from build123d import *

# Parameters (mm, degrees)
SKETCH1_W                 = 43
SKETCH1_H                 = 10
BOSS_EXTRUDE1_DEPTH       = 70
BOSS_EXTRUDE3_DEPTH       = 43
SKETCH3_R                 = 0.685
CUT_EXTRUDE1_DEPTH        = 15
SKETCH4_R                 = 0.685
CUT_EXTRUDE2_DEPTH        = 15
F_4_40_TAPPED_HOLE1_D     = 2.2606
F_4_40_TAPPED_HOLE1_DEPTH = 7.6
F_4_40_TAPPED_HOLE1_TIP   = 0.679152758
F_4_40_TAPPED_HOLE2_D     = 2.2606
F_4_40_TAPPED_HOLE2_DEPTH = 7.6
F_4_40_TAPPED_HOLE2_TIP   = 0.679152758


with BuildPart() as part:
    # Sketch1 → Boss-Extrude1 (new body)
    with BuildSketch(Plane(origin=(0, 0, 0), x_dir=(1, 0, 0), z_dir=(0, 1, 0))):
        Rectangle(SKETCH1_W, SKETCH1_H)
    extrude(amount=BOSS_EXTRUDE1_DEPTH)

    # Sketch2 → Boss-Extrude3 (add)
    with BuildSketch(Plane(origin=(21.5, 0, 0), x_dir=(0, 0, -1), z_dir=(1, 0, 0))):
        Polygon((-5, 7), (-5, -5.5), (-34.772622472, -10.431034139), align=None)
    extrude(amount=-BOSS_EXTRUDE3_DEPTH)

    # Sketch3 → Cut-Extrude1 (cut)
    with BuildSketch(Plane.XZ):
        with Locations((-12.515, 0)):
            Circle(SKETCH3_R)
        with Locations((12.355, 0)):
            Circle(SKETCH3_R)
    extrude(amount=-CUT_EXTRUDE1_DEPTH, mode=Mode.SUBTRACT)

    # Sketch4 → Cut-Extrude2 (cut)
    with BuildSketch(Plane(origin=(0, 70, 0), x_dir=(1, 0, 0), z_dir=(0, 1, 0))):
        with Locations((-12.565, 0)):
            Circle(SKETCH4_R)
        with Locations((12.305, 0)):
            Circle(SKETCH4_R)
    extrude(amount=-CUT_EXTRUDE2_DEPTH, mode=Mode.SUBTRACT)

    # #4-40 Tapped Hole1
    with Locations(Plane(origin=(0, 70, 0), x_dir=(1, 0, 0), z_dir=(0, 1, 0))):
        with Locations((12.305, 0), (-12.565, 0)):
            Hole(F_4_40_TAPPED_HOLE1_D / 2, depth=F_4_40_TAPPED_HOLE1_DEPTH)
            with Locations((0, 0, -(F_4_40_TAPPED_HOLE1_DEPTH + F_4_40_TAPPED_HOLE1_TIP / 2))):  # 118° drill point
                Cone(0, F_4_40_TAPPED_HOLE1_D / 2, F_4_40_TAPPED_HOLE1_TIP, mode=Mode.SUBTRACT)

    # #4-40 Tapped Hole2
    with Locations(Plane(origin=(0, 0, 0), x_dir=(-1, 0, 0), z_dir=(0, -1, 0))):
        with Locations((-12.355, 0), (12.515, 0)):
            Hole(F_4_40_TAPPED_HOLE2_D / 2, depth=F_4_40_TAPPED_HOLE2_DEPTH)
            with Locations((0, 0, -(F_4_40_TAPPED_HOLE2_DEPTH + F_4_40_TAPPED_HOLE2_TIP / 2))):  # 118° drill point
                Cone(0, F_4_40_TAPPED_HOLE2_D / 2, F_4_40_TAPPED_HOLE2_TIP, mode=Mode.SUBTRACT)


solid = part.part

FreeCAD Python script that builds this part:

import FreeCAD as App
import Part
import Sketcher
from FreeCAD import Vector
Q = App.Units.Quantity

doc = App.newDocument("Part")
params = doc.addObject("Spreadsheet::Sheet", "Params")
for row, (alias, value) in enumerate([
    ("sketch1_width", "43 mm"),
    ("sketch1_height", "10 mm"),
    ("pad1_length", "70 mm"),
    ("sketch2_width", "12.5 mm"),
    ("sketch2_length", "34.5 mm"),
    ("pad2_length", "43 mm"),
    ("sketch3_diameter", "1.37 mm"),
    ("pocket1_length", "15 mm"),
    ("sketch4_diameter", "1.37 mm"),
    ("pocket2_length", "15 mm"),
    ("hole_diameter", "2.2606 mm"),
    ("hole_depth", "7.6 mm"),
    ("hole2_diameter", "2.2606 mm"),
    ("hole2_depth", "7.6 mm"),
], start=1):
    params.set(f"A{row}", alias)
    params.set(f"B{row}", "=" + value)
    params.setAlias(f"B{row}", alias)

body = doc.addObject("PartDesign::Body", "Body")

sketch1 = doc.addObject("Sketcher::SketchObject", "Sketch")
body.addObject(sketch1)
sketch1.AttachmentSupport = (doc.XZ_Plane, [""])
sketch1.MapMode = "FlatFace"
sketch1.addGeometry([
    Part.LineSegment(Vector(-21.5, -5, 0), Vector(-21.5, 5, 0)),
    Part.LineSegment(Vector(-21.5, 5, 0), Vector(21.5, 5, 0)),
    Part.LineSegment(Vector(21.5, 5, 0), Vector(21.5, -5, 0)),
    Part.LineSegment(Vector(21.5, -5, 0), Vector(-21.5, -5, 0)),
], False)
sketch1.addConstraint([
    Sketcher.Constraint("Coincident", 0, 2, 1, 1),
    Sketcher.Constraint("Coincident", 1, 2, 2, 1),
    Sketcher.Constraint("Coincident", 2, 2, 3, 1),
    Sketcher.Constraint("Coincident", 3, 2, 0, 1),
    Sketcher.Constraint("Vertical", 0),
    Sketcher.Constraint("Horizontal", 1),
    Sketcher.Constraint("Vertical", 2),
    Sketcher.Constraint("Horizontal", 3),
    Sketcher.Constraint("Symmetric", 0, 2, 2, 2, -1, 1),
    Sketcher.Constraint("DistanceX", 1, 1, 1, 2, Q("43 mm")),
    Sketcher.Constraint("DistanceY", 0, 1, 0, 2, Q("10 mm")),
])
sketch1.setExpression("Constraints[9]", "Params.sketch1_width")
sketch1.setExpression("Constraints[10]", "Params.sketch1_height")
pad1 = doc.addObject("PartDesign::Pad", "Pad")
body.addObject(pad1)
pad1.Profile = sketch1
pad1.setExpression("Length", "Params.pad1_length")
pad1.Reversed = True

sketch2 = doc.addObject("Sketcher::SketchObject", "Sketch001")
body.addObject(sketch2)
sketch2.AttachmentSupport = (doc.YZ_Plane, [""])
sketch2.MapMode = "FlatFace"
sketch2.AttachmentOffset = App.Placement(Vector(0, 0, 21.5), App.Rotation())
sketch2.addGeometry([
    Part.LineSegment(Vector(-5.5, 5, 0), Vector(7, 5, 0)),
    Part.LineSegment(Vector(7, 5, 0), Vector(-10.431034, 34.772622, 0)),
    Part.LineSegment(Vector(-10.431034, 34.772622, 0), Vector(-5.5, 5, 0)),
], False)
sketch2.addConstraint([
    Sketcher.Constraint("Coincident", 0, 2, 1, 1),
    Sketcher.Constraint("Coincident", 1, 2, 2, 1),
    Sketcher.Constraint("Coincident", 2, 2, 0, 1),
    Sketcher.Constraint("Horizontal", 0),
    Sketcher.Constraint("DistanceX", 0, 1, 0, 2, Q("12.5 mm")),
    Sketcher.Constraint("DistanceX", -1, 1, 0, 2, Q("7 mm")),
    Sketcher.Constraint("DistanceY", -1, 1, 0, 2, Q("5 mm")),
    Sketcher.Constraint("Distance", 1, Q("34.5 mm")),
    Sketcher.Constraint("Distance", 2, Q("30.178206 mm")),
])
sketch2.setExpression("Constraints[4]", "Params.sketch2_width")
sketch2.setExpression("Constraints[7]", "Params.sketch2_length")
pad2 = doc.addObject("PartDesign::Pad", "Pad001")
body.addObject(pad2)
pad2.Profile = sketch2
pad2.setExpression("Length", "Params.pad2_length")
pad2.Reversed = True

sketch3 = doc.addObject("Sketcher::SketchObject", "Sketch002")
body.addObject(sketch3)
sketch3.AttachmentSupport = (doc.XZ_Plane, [""])
sketch3.MapMode = "FlatFace"
sketch3.addGeometry([
    Part.Circle(Vector(-12.515, 0, 0), Vector(0, 0, 1), 0.685),
    Part.Circle(Vector(12.355, 0, 0), Vector(0, 0, 1), 0.685),
], False)
sketch3.addConstraint([
    Sketcher.Constraint("Equal", 0, 1),
    Sketcher.Constraint("PointOnObject", 0, 3, -1),
    Sketcher.Constraint("PointOnObject", 1, 3, -1),
    Sketcher.Constraint("Diameter", 0, Q("1.37 mm")),
    Sketcher.Constraint("DistanceX", 0, 3, 1, 3, Q("24.87 mm")),
    Sketcher.Constraint("DistanceX", 0, 3, -1, 1, Q("12.515 mm")),
])
sketch3.setExpression("Constraints[3]", "Params.sketch3_diameter")
pocket1 = doc.addObject("PartDesign::Pocket", "Pocket")
body.addObject(pocket1)
pocket1.Profile = sketch3
pocket1.setExpression("Length", "Params.pocket1_length")

sketch4 = doc.addObject("Sketcher::SketchObject", "Sketch003")
body.addObject(sketch4)
sketch4.AttachmentSupport = (doc.XZ_Plane, [""])
sketch4.MapMode = "FlatFace"
sketch4.AttachmentOffset = App.Placement(Vector(0, 0, -70), App.Rotation())
sketch4.addGeometry([
    Part.Circle(Vector(-12.565, 0, 0), Vector(0, 0, 1), 0.685),
    Part.Circle(Vector(12.305, 0, 0), Vector(0, 0, 1), 0.685),
], False)
sketch4.addConstraint([
    Sketcher.Constraint("Equal", 0, 1),
    Sketcher.Constraint("PointOnObject", 0, 3, -1),
    Sketcher.Constraint("PointOnObject", 1, 3, -1),
    Sketcher.Constraint("Diameter", 0, Q("1.37 mm")),
    Sketcher.Constraint("DistanceX", 0, 3, 1, 3, Q("24.87 mm")),
    Sketcher.Constraint("DistanceX", 0, 3, -1, 1, Q("12.565 mm")),
])
sketch4.setExpression("Constraints[3]", "Params.sketch4_diameter")
pocket2 = doc.addObject("PartDesign::Pocket", "Pocket001")
body.addObject(pocket2)
pocket2.Profile = sketch4
pocket2.setExpression("Length", "Params.pocket2_length")
pocket2.Reversed = True

sketch5 = doc.addObject("Sketcher::SketchObject", "Sketch004")
body.addObject(sketch5)
sketch5.AttachmentSupport = (doc.XZ_Plane, [""])
sketch5.MapMode = "FlatFace"
sketch5.AttachmentOffset = App.Placement(Vector(0, 0, -70), App.Rotation())
sketch5.addGeometry([
    Part.Circle(Vector(12.305, 0, 0), Vector(0, 0, 1), 1.1303),
    Part.Circle(Vector(-12.565, 0, 0), Vector(0, 0, 1), 1.1303),
], False)
sketch5.addConstraint([
    Sketcher.Constraint("Equal", 0, 1),
    Sketcher.Constraint("PointOnObject", 0, 3, -1),
    Sketcher.Constraint("PointOnObject", 1, 3, -1),
    Sketcher.Constraint("Diameter", 0, Q("2.2606 mm")),
    Sketcher.Constraint("DistanceX", 1, 3, 0, 3, Q("24.87 mm")),
    Sketcher.Constraint("DistanceX", -1, 1, 0, 3, Q("12.305 mm")),
])
doc.recompute()
hole = doc.addObject("PartDesign::Hole", "Hole")
body.addObject(hole)
hole.Profile = sketch5
hole.ThreadType = "None"
hole.setExpression("Diameter", "Params.hole_diameter")
hole.DepthType = "Dimension"
hole.setExpression("Depth", "Params.hole_depth")
hole.DrillPoint = "Angled"
hole.DrillPointAngle = 118
hole.Reversed = True

sketch6 = doc.addObject("Sketcher::SketchObject", "Sketch005")
body.addObject(sketch6)
sketch6.AttachmentSupport = (doc.XZ_Plane, [""])
sketch6.MapMode = "FlatFace"
sketch6.addGeometry([
    Part.Circle(Vector(12.355, 0, 0), Vector(0, 0, 1), 1.1303),
    Part.Circle(Vector(-12.515, 0, 0), Vector(0, 0, 1), 1.1303),
], False)
sketch6.addConstraint([
    Sketcher.Constraint("Equal", 0, 1),
    Sketcher.Constraint("PointOnObject", 0, 3, -1),
    Sketcher.Constraint("PointOnObject", 1, 3, -1),
    Sketcher.Constraint("Diameter", 0, Q("2.2606 mm")),
    Sketcher.Constraint("DistanceX", 1, 3, 0, 3, Q("24.87 mm")),
    Sketcher.Constraint("DistanceX", -1, 1, 0, 3, Q("12.355 mm")),
])
doc.recompute()
hole2 = doc.addObject("PartDesign::Hole", "Hole001")
body.addObject(hole2)
hole2.Profile = sketch6
hole2.ThreadType = "None"
hole2.setExpression("Diameter", "Params.hole2_diameter")
hole2.DepthType = "Dimension"
hole2.setExpression("Depth", "Params.hole2_depth")
hole2.DrillPoint = "Angled"
hole2.DrillPointAngle = 118

doc.recompute()
